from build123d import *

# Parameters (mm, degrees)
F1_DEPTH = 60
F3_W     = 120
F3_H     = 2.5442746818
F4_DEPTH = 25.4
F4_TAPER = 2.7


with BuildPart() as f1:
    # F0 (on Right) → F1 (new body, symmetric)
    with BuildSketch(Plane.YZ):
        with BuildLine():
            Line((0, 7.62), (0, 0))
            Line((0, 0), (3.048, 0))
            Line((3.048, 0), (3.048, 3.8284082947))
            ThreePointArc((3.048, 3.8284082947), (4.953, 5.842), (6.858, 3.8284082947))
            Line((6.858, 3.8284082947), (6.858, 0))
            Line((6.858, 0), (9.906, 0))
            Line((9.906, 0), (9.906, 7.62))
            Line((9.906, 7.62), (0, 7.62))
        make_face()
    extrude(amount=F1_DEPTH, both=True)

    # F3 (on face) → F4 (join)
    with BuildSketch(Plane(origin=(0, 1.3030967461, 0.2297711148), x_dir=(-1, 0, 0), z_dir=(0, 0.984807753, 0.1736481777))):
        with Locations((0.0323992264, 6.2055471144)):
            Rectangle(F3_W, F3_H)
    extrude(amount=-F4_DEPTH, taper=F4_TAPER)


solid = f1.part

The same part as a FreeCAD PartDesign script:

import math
import FreeCAD as App
import Part
import Sketcher
Q = App.Units.Quantity

doc = App.newDocument("Part")
body = doc.addObject("PartDesign::Body", "Body")

sketch1 = body.newObject("Sketcher::SketchObject", "Sketch")
sketch1.AttachmentSupport = (doc.getObject("YZ_Plane"), [""])
sketch1.MapMode = "FlatFace"
sketch1.addGeometry([
    Part.LineSegment(App.Vector(0, 7.62, 0), App.Vector(0, 0, 0)),
    Part.LineSegment(App.Vector(0, 0, 0), App.Vector(3.048, 0, 0)),
    Part.LineSegment(App.Vector(3.048, 0, 0), App.Vector(3.048, 3.828408, 0)),
    Part.ArcOfCircle(Part.Circle(App.Vector(4.953, 3.934072, 0), App.Vector(0, 0, 1), 1.907928), math.radians(-3.17474), math.radians(183.17474)),
    Part.LineSegment(App.Vector(6.858, 3.828408, 0), App.Vector(6.858, 0, 0)),
    Part.LineSegment(App.Vector(6.858, 0, 0), App.Vector(9.906, 0, 0)),
    Part.LineSegment(App.Vector(9.906, 0, 0), App.Vector(9.906, 7.62, 0)),
    Part.LineSegment(App.Vector(9.906, 7.62, 0), App.Vector(0, 7.62, 0)),
], False)
sketch1.addConstraint([
    Sketcher.Constraint("Coincident", 0, 2, 1, 1),
    Sketcher.Constraint("Coincident", 1, 2, 2, 1),
    Sketcher.Constraint("Coincident", 2, 2, 3, 2),
    Sketcher.Constraint("Coincident", 3, 1, 4, 1),
    Sketcher.Constraint("Coincident", 4, 2, 5, 1),
    Sketcher.Constraint("Coincident", 5, 2, 6, 1),
    Sketcher.Constraint("Coincident", 6, 2, 7, 1),
    Sketcher.Constraint("Coincident", 7, 2, 0, 1),
    Sketcher.Constraint("Vertical", 0),
    Sketcher.Constraint("Horizontal", 1),
    Sketcher.Constraint("Vertical", 2),
    Sketcher.Constraint("Vertical", 4),
    Sketcher.Constraint("Horizontal", 5),
    Sketcher.Constraint("Vertical", 6),
    Sketcher.Constraint("Horizontal", 7),
    Sketcher.Constraint("Coincident", 0, 2, -1, 1),
    Sketcher.Constraint("PointOnObject", 4, 2, -1),
    Sketcher.Constraint("Horizontal", 2, 2, 3, 1),
    Sketcher.Constraint("Equal", 1, 5),
    Sketcher.Constraint("DistanceY", 0, 2, 0, 1, Q("0.3 in")),
    Sketcher.Constraint("DistanceX", 1, 1, 1, 2, Q("0.12 in")),
    Sketcher.Constraint("DistanceX", 7, 2, 7, 1, Q("0.39 in")),
    Sketcher.Constraint("Radius", 3, Q("1.907928 mm")),
    Sketcher.Constraint("DistanceY", 2, 1, 2, 2, Q("3.828408 mm")),
])
pad1 = body.newObject("PartDesign::Pad", "Pad")
pad1.Profile = sketch1
pad1.Length = 120
pad1.Midplane = True

sketch2 = body.newObject("Sketcher::SketchObject", "Sketch001")
sketch2.Placement = App.Placement(App.Vector(0, 1.303097, 0.229771), App.Rotation(App.Vector(-1, 0, 0), App.Vector(0, -0.173648178, 0.984807753), App.Vector(0, 0.984807753, 0.173648178), "ZXY"))
sketch2.addGeometry([
    Part.LineSegment(App.Vector(-59.967601, 7.477684, 0), App.Vector(-59.967601, 4.93341, 0)),
    Part.LineSegment(App.Vector(-59.967601, 4.93341, 0), App.Vector(60.032399, 4.93341, 0)),
    Part.LineSegment(App.Vector(60.032399, 4.93341, 0), App.Vector(60.032399, 7.477684, 0)),
    Part.LineSegment(App.Vector(60.032399, 7.477684, 0), App.Vector(-59.967601, 7.477684, 0)),
], False)
sketch2.addConstraint([
    Sketcher.Constraint("Coincident", 0, 2, 1, 1),
    Sketcher.Constraint("Coincident", 1, 2, 2, 1),
    Sketcher.Constraint("Coincident", 2, 2, 3, 1),
    Sketcher.Constraint("Coincident", 3, 2, 0, 1),
    Sketcher.Constraint("Vertical", 0),
    Sketcher.Constraint("Horizontal", 1),
    Sketcher.Constraint("Vertical", 2),
    Sketcher.Constraint("Horizontal", 3),
    Sketcher.Constraint("DistanceX", 1, 1, 1, 2, Q("120 mm")),
    Sketcher.Constraint("DistanceX", 0, 2, -1, 1, Q("59.967601 mm")),
    Sketcher.Constraint("DistanceY", 0, 2, 0, 1, Q("2.544275 mm")),
    Sketcher.Constraint("DistanceY", -1, 1, 0, 2, Q("4.93341 mm")),
])
pad2 = body.newObject("PartDesign::Pad", "Pad001")
pad2.Profile = sketch2
pad2.Length = Q("1 in")
pad2.Reversed = True
pad2.TaperAngle = -2.7

doc.recompute()
